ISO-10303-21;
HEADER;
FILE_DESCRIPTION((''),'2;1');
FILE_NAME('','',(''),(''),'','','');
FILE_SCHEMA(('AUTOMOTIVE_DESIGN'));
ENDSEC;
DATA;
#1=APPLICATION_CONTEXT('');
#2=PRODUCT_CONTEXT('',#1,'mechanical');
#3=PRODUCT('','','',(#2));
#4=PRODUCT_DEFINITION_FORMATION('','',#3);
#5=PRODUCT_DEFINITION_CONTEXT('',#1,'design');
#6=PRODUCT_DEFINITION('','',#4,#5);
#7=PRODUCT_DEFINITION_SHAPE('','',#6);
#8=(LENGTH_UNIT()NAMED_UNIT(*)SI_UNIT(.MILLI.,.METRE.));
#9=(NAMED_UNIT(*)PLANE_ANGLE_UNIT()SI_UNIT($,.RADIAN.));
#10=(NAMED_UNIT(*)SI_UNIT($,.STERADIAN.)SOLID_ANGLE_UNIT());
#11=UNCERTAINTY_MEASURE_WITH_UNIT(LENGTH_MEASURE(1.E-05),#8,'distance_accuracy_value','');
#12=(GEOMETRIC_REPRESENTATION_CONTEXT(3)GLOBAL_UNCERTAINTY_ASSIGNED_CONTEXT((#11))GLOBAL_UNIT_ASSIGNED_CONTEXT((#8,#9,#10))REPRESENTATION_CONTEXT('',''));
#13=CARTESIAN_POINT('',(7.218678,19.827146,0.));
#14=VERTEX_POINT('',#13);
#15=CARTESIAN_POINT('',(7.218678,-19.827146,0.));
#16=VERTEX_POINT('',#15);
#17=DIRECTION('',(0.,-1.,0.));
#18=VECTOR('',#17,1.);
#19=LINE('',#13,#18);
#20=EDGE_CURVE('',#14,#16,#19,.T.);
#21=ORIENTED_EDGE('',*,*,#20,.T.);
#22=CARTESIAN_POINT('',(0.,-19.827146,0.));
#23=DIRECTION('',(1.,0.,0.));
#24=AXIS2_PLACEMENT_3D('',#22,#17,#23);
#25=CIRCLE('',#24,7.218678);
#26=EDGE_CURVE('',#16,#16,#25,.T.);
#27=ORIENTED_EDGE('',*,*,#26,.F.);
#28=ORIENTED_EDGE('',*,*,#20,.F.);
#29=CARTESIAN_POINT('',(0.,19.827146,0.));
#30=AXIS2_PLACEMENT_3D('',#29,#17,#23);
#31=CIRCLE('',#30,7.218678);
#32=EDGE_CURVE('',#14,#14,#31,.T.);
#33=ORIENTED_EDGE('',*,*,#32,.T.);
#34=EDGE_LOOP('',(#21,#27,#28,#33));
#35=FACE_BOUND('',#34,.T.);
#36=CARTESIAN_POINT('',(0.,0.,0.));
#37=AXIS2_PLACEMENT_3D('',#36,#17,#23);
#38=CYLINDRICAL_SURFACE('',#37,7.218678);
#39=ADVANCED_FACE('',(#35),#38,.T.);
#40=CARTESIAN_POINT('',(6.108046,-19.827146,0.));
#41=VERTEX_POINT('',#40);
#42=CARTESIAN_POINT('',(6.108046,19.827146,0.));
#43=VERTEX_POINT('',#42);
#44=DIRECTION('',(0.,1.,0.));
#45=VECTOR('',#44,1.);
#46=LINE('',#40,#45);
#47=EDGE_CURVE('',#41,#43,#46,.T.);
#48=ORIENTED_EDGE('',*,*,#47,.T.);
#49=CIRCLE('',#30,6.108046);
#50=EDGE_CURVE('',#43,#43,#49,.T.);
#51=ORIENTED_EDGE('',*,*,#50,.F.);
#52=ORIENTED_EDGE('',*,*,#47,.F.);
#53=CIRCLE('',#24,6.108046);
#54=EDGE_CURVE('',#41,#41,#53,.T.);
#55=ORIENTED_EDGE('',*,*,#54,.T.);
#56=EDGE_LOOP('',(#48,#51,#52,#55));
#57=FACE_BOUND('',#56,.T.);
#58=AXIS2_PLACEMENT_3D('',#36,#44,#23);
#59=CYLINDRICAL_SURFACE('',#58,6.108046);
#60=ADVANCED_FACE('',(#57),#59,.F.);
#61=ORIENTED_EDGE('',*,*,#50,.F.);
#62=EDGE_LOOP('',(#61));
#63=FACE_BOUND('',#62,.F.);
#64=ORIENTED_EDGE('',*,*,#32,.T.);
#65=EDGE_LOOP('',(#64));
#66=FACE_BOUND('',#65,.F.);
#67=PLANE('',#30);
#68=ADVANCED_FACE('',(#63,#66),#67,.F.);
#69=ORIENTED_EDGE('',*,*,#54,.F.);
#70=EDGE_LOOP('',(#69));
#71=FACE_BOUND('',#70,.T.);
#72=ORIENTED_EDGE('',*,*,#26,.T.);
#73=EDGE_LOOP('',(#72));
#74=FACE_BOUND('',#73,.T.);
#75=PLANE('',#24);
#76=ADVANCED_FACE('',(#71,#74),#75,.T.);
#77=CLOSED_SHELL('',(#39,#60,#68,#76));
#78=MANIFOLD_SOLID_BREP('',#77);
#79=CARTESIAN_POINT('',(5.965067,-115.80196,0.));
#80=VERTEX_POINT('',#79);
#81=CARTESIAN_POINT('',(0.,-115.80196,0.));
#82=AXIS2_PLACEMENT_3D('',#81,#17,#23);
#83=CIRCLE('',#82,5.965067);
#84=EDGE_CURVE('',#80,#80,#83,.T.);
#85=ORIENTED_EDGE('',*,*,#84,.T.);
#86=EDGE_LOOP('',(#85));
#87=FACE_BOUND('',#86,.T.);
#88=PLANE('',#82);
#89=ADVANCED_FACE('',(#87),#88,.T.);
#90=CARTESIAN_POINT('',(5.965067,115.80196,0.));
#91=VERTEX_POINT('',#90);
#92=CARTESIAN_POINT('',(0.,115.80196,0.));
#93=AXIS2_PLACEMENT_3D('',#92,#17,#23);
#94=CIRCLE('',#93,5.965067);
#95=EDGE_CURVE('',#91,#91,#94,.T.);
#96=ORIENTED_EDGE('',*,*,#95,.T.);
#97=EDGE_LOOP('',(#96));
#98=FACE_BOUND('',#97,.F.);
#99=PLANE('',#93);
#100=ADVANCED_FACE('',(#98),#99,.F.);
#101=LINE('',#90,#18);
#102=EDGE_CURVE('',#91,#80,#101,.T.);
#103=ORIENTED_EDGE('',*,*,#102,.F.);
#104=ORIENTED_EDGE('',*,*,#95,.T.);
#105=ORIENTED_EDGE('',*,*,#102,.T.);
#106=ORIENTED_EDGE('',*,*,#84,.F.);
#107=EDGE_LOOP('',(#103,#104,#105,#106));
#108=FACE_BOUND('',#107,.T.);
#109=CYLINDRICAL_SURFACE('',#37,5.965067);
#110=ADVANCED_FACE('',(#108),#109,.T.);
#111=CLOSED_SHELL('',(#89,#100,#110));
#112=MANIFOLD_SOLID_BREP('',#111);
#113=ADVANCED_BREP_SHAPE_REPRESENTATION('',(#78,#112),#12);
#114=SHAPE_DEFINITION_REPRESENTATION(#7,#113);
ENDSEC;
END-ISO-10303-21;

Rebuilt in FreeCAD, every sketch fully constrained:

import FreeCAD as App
import Part
import Sketcher
from FreeCAD import Vector

doc = App.newDocument("Part")
body = doc.addObject("PartDesign::Body", "Body")

# Sketch on XZ plane
sketch1 = body.newObject("Sketcher::SketchObject", "Sketch")
sketch1.AttachmentSupport = (doc.getObject("XZ_Plane"), [""])
sketch1.MapMode = "FlatFace"
sketch1.addGeometry(Part.Circle(Vector(0, 0, 0), Vector(0, 0, 1), 5.965067), False)
sketch1.addConstraint([
    Sketcher.Constraint("Coincident", 0, 3, -1, 1),
    Sketcher.Constraint("Diameter", 0, 11.930134),
])
pad1 = body.newObject("PartDesign::Pad", "Pad")
pad1.Profile = sketch1
pad1.Length = 231.60392
pad1.Midplane = True
body2 = doc.addObject("PartDesign::Body", "Body001")

# Sketch on XZ plane
sketch2 = body2.newObject("Sketcher::SketchObject", "Sketch001")
sketch2.AttachmentSupport = (doc.getObject("XZ_Plane001"), [""])
sketch2.MapMode = "FlatFace"
sketch2.addGeometry([
    Part.Circle(Vector(0, 0, 0), Vector(0, 0, 1), 7.218678),
    Part.Circle(Vector(0, 0, 0), Vector(0, 0, 1), 6.108046),
], False)
sketch2.addConstraint([
    Sketcher.Constraint("Coincident", 0, 3, -1, 1),
    Sketcher.Constraint("Coincident", 1, 3, -1, 1),
    Sketcher.Constraint("Diameter", 0, 14.437356),
    Sketcher.Constraint("Diameter", 1, 12.216092),
])
pad2 = body2.newObject("PartDesign::Pad", "Pad001")
pad2.Profile = sketch2
pad2.Length = 39.654292
pad2.Midplane = True

doc.recompute()
